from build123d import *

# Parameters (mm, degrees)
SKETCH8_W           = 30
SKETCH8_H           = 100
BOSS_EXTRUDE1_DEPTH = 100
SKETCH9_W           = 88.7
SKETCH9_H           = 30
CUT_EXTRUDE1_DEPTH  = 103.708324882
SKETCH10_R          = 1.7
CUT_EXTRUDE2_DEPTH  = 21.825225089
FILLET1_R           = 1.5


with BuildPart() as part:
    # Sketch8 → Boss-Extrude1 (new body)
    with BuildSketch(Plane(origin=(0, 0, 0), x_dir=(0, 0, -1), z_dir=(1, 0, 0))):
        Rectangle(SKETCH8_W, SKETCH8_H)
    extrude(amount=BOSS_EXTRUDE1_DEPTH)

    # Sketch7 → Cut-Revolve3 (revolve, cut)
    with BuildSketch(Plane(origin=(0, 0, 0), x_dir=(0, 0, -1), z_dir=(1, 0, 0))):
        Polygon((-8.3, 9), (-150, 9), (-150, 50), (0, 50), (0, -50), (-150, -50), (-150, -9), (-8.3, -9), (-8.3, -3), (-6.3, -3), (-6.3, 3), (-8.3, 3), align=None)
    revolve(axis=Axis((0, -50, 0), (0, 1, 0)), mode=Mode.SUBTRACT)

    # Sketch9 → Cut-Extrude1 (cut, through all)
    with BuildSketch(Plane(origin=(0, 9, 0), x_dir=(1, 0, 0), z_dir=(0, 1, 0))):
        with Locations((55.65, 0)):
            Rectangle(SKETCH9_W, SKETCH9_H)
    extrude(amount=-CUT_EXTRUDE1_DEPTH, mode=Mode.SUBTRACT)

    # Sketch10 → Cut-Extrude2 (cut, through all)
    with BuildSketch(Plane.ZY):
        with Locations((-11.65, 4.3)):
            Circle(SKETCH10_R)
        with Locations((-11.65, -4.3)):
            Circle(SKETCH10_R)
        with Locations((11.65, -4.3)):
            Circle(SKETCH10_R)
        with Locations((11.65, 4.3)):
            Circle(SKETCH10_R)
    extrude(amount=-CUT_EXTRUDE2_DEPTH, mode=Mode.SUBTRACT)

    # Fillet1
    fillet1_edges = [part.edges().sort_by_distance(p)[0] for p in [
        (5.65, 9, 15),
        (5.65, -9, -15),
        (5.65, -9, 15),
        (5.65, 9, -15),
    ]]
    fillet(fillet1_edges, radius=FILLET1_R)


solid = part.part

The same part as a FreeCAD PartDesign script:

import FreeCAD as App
import Part
import Sketcher


def edges_at(feature, points):
    """Names of the edges that pass closest to the given points."""
    edges = feature.Shape.Edges
    near = lambda p: min(range(len(edges)), key=lambda i: edges[i].distToShape(Part.Vertex(*p))[0])
    return sorted({f"Edge{near(p) + 1}" for p in points})

doc = App.newDocument("Part")
params = doc.addObject("Spreadsheet::Sheet", "Params")
for row, (alias, value) in enumerate([
    ("sketch1_width", "100 mm"),
    ("sketch1_height", "30 mm"),
    ("pad1_length", "100 mm"),
    ("sketch2_width", "6 mm"),
    ("sketch2_width2", "41 mm"),
    ("sketch2_height", "2 mm"),
    ("sketch2_height2", "150 mm"),
    ("sketch2_height3", "141.7 mm"),
    ("groove_angle", "360 deg"),
    ("sketch3_height", "30 mm"),
    ("sketch3_width", "88.7 mm"),
    ("sketch4_diameter", "3.4 mm"),
    ("fillet_radius", "1.5 mm"),
], start=1):
    params.set(f"A{row}", alias)
    params.set(f"B{row}", "=" + value)
    params.setAlias(f"B{row}", alias)

body = doc.addObject("PartDesign::Body", "Body")

# Sketch on YZ plane
sketch1 = doc.addObject("Sketcher::SketchObject", "Sketch")
body.addObject(sketch1)
sketch1.AttachmentSupport = (doc.YZ_Plane, [""])
sketch1.MapMode = "FlatFace"
sketch1.addGeometry(Part.LineSegment(App.Vector(50, 15, 0), App.Vector(-50, 15, 0)), False)
sketch1.addGeometry(Part.LineSegment(App.Vector(-50, 15, 0), App.Vector(-50, -15, 0)), False)
sketch1.addGeometry(Part.LineSegment(App.Vector(-50, -15, 0), App.Vector(50, -15, 0)), False)
sketch1.addGeometry(Part.LineSegment(App.Vector(50, -15, 0), App.Vector(50, 15, 0)), False)
sketch1.addConstraint(Sketcher.Constraint("Coincident", 0, 2, 1, 1))
sketch1.addConstraint(Sketcher.Constraint("Coincident", 1, 2, 2, 1))
sketch1.addConstraint(Sketcher.Constraint("Coincident", 2, 2, 3, 1))
sketch1.addConstraint(Sketcher.Constraint("Coincident", 3, 2, 0, 1))
sketch1.addConstraint(Sketcher.Constraint("Horizontal", 0))
sketch1.addConstraint(Sketcher.Constraint("Vertical", 1))
sketch1.addConstraint(Sketcher.Constraint("Horizontal", 2))
sketch1.addConstraint(Sketcher.Constraint("Vertical", 3))
sketch1.addConstraint(Sketcher.Constraint("Symmetric", 0, 2, 2, 2, -1, 1))
sketch1.addConstraint(Sketcher.Constraint("DistanceX", 0, 2, 0, 1, 100.0))
sketch1.addConstraint(Sketcher.Constraint("DistanceY", 1, 2, 1, 1, 30.0))
sketch1.setExpression("Constraints[9]", "Params.sketch1_width")
sketch1.setExpression("Constraints[10]", "Params.sketch1_height")
pad1 = doc.addObject("PartDesign::Pad", "Pad")
body.addObject(pad1)
pad1.Profile = sketch1
pad1.setExpression("Length", "Params.pad1_length")

# Sketch on YZ plane
sketch2 = doc.addObject("Sketcher::SketchObject", "Sketch001")
body.addObject(sketch2)
sketch2.AttachmentSupport = (doc.YZ_Plane, [""])
sketch2.MapMode = "FlatFace"
sketch2.addGeometry(Part.LineSegment(App.Vector(9, 150, 0), App.Vector(9, 8.3, 0)), False)
sketch2.addGeometry(Part.LineSegment(App.Vector(9, 8.3, 0), App.Vector(3, 8.3, 0)), False)
sketch2.addGeometry(Part.LineSegment(App.Vector(3, 8.3, 0), App.Vector(3, 6.3, 0)), False)
sketch2.addGeometry(Part.LineSegment(App.Vector(3, 6.3, 0), App.Vector(-3, 6.3, 0)), False)
sketch2.addGeometry(Part.LineSegment(App.Vector(-3, 6.3, 0), App.Vector(-3, 8.3, 0)), False)
sketch2.addGeometry(Part.LineSegment(App.Vector(-3, 8.3, 0), App.Vector(-9, 8.3, 0)), False)
sketch2.addGeometry(Part.LineSegment(App.Vector(-9, 8.3, 0), App.Vector(-9, 150, 0)), False)
sketch2.addGeometry(Part.LineSegment(App.Vector(-9, 150, 0), App.Vector(-50, 150, 0)), False)
sketch2.addGeometry(Part.LineSegment(App.Vector(-50, 150, 0), App.Vector(-50, 0, 0)), False)
sketch2.addGeometry(Part.LineSegment(App.Vector(-50, 0, 0), App.Vector(50, 0, 0)), False)
sketch2.addGeometry(Part.LineSegment(App.Vector(50, 0, 0), App.Vector(50, 150, 0)), False)
sketch2.addGeometry(Part.LineSegment(App.Vector(50, 150, 0), App.Vector(9, 150, 0)), False)
sketch2.addConstraint(Sketcher.Constraint("Coincident", 0, 2, 1, 1))
sketch2.addConstraint(Sketcher.Constraint("Coincident", 1, 2, 2, 1))
sketch2.addConstraint(Sketcher.Constraint("Coincident", 2, 2, 3, 1))
sketch2.addConstraint(Sketcher.Constraint("Coincident", 3, 2, 4, 1))
sketch2.addConstraint(Sketcher.Constraint("Coincident", 4, 2, 5, 1))
sketch2.addConstraint(Sketcher.Constraint("Coincident", 5, 2, 6, 1))
sketch2.addConstraint(Sketcher.Constraint("Coincident", 6, 2, 7, 1))
sketch2.addConstraint(Sketcher.Constraint("Coincident", 7, 2, 8, 1))
sketch2.addConstraint(Sketcher.Constraint("Coincident", 8, 2, 9, 1))
sketch2.addConstraint(Sketcher.Constraint("Coincident", 9, 2, 10, 1))
sketch2.addConstraint(Sketcher.Constraint("Coincident", 10, 2, 11, 1))
sketch2.addConstraint(Sketcher.Constraint("Coincident", 11, 2, 0, 1))
sketch2.addConstraint(Sketcher.Constraint("Vertical", 0))
sketch2.addConstraint(Sketcher.Constraint("Horizontal", 1))
sketch2.addConstraint(Sketcher.Constraint("Vertical", 2))
sketch2.addConstraint(Sketcher.Constraint("Horizontal", 3))
sketch2.addConstraint(Sketcher.Constraint("Vertical", 4))
sketch2.addConstraint(Sketcher.Constraint("Horizontal", 5))
sketch2.addConstraint(Sketcher.Constraint("Vertical", 6))
sketch2.addConstraint(Sketcher.Constraint("Horizontal", 7))
sketch2.addConstraint(Sketcher.Constraint("Vertical", 8))
sketch2.addConstraint(Sketcher.Constraint("Horizontal", 9))
sketch2.addConstraint(Sketcher.Constraint("Vertical", 10))
sketch2.addConstraint(Sketcher.Constraint("Horizontal", 11))
sketch2.addConstraint(Sketcher.Constraint("Symmetric", 8, 2, 9, 2, -1, 1))
sketch2.addConstraint(Sketcher.Constraint("Symmetric", 1, 2, 4, 2, -2))
sketch2.addConstraint(Sketcher.Constraint("Symmetric", 6, 2, 11, 2, -2))
sketch2.addConstraint(Sketcher.Constraint("Equal", 1, 3))
sketch2.addConstraint(Sketcher.Constraint("DistanceX", 1, 2, 1, 1, 6.0))
sketch2.addConstraint(Sketcher.Constraint("DistanceX", 7, 2, 7, 1, 41.0))
sketch2.addConstraint(Sketcher.Constraint("DistanceY", 2, 2, 2, 1, 2.0))
sketch2.addConstraint(Sketcher.Constraint("DistanceY", 8, 2, 8, 1, 150.0))
sketch2.addConstraint(Sketcher.Constraint("DistanceY", 0, 2, 0, 1, 141.7))
sketch2.setExpression("Constraints[28]", "Params.sketch2_width")
sketch2.setExpression("Constraints[29]", "Params.sketch2_width2")
sketch2.setExpression("Constraints[30]", "Params.sketch2_height")
sketch2.setExpression("Constraints[31]", "Params.sketch2_height2")
sketch2.setExpression("Constraints[32]", "Params.sketch2_height3")
groove = doc.addObject("PartDesign::Groove", "Groove")
body.addObject(groove)
groove.Profile = sketch2
groove.ReferenceAxis = (sketch2, ["H_Axis"])
groove.setExpression("Angle", "Params.groove_angle")

# Sketch on XZ plane
sketch3 = doc.addObject("Sketcher::SketchObject", "Sketch002")
body.addObject(sketch3)
sketch3.AttachmentSupport = (doc.XZ_Plane, [""])
sketch3.MapMode = "FlatFace"
sketch3.AttachmentOffset = App.Placement(App.Vector(0, 0, -9), App.Rotation())
sketch3.addGeometry(Part.LineSegment(App.Vector(11, -15, 0), App.Vector(11, 15, 0)), False)
sketch3.addGeometry(Part.LineSegment(App.Vector(11, 15, 0), App.Vector(100, 15, 0)), False)
sketch3.addGeometry(Part.LineSegment(App.Vector(100, 15, 0), App.Vector(100, -15, 0)), False)
sketch3.addGeometry(Part.LineSegment(App.Vector(100, -15, 0), App.Vector(11, -15, 0)), False)
sketch3.addConstraint(Sketcher.Constraint("Coincident", 0, 2, 1, 1))
sketch3.addConstraint(Sketcher.Constraint("Coincident", 1, 2, 2, 1))
sketch3.addConstraint(Sketcher.Constraint("Coincident", 2, 2, 3, 1))
sketch3.addConstraint(Sketcher.Constraint("Coincident", 3, 2, 0, 1))
sketch3.addConstraint(Sketcher.Constraint("Vertical", 0))
sketch3.addConstraint(Sketcher.Constraint("Horizontal", 1))
sketch3.addConstraint(Sketcher.Constraint("Vertical", 2))
sketch3.addConstraint(Sketcher.Constraint("Horizontal", 3))
sketch3.addConstraint(Sketcher.Constraint("DistanceY", 0, 1, 0, 2, 30.0))
sketch3.addConstraint(Sketcher.Constraint("DistanceX", 1, 1, 1, 2, 88.7))
sketch3.addConstraint(Sketcher.Constraint("DistanceY", -1, 1, 0, 2, 15.0))
sketch3.addConstraint(Sketcher.Constraint("DistanceX", -1, 1, 1, 2, 100.0))
sketch3.setExpression("Constraints[8]", "Params.sketch3_height")
sketch3.setExpression("Constraints[9]", "Params.sketch3_width")
pocket1 = doc.addObject("PartDesign::Pocket", "Pocket")
body.addObject(pocket1)
pocket1.Profile = sketch3
pocket1.Type = "ThroughAll"
pocket1.Reversed = True

# Sketch on YZ plane
sketch4 = doc.addObject("Sketcher::SketchObject", "Sketch003")
body.addObject(sketch4)
sketch4.AttachmentSupport = (doc.YZ_Plane, [""])
sketch4.MapMode = "FlatFace"
sketch4.addGeometry(Part.Circle(App.Vector(4.3, -11.7, 0), App.Vector(0, 0, 1), 1.7), False)
sketch4.addGeometry(Part.Circle(App.Vector(-4.3, -11.7, 0), App.Vector(0, 0, 1), 1.7), False)
sketch4.addGeometry(Part.Circle(App.Vector(-4.3, 11.7, 0), App.Vector(0, 0, 1), 1.7), False)
sketch4.addGeometry(Part.Circle(App.Vector(4.3, 11.7, 0), App.Vector(0, 0, 1), 1.7), False)
sketch4.addConstraint(Sketcher.Constraint("Equal", 0, 1))
sketch4.addConstraint(Sketcher.Constraint("Equal", 1, 2))
sketch4.addConstraint(Sketcher.Constraint("Equal", 2, 3))
sketch4.addConstraint(Sketcher.Constraint("Symmetric", 0, 3, 2, 3, -1, 1))
sketch4.addConstraint(Sketcher.Constraint("Symmetric", 1, 3, 3, 3, -1, 1))
sketch4.addConstraint(Sketcher.Constraint("Symmetric", 0, 3, 1, 3, -2))
sketch4.addConstraint(Sketcher.Constraint("Diameter", 0, 3.4))
sketch4.addConstraint(Sketcher.Constraint("DistanceX", -1, 1, 0, 3, 4.3))
sketch4.addConstraint(Sketcher.Constraint("DistanceY", 1, 3, 2, 3, 23.3))
sketch4.setExpression("Constraints[6]", "Params.sketch4_diameter")
pocket2 = doc.addObject("PartDesign::Pocket", "Pocket001")
body.addObject(pocket2)
pocket2.Profile = sketch4
pocket2.Type = "ThroughAll"
pocket2.Reversed = True
doc.recompute()

fillet = doc.addObject("PartDesign::Fillet", "Fillet")
body.addObject(fillet)
fillet.Base = (pocket2, edges_at(pocket2, [
    (5.65, 9, 15),
    (5.65, -9, -15),
    (5.65, -9, 15),
    (5.65, 9, -15),
]))
fillet.setExpression("Radius", "Params.fillet_radius")

doc.recompute()
